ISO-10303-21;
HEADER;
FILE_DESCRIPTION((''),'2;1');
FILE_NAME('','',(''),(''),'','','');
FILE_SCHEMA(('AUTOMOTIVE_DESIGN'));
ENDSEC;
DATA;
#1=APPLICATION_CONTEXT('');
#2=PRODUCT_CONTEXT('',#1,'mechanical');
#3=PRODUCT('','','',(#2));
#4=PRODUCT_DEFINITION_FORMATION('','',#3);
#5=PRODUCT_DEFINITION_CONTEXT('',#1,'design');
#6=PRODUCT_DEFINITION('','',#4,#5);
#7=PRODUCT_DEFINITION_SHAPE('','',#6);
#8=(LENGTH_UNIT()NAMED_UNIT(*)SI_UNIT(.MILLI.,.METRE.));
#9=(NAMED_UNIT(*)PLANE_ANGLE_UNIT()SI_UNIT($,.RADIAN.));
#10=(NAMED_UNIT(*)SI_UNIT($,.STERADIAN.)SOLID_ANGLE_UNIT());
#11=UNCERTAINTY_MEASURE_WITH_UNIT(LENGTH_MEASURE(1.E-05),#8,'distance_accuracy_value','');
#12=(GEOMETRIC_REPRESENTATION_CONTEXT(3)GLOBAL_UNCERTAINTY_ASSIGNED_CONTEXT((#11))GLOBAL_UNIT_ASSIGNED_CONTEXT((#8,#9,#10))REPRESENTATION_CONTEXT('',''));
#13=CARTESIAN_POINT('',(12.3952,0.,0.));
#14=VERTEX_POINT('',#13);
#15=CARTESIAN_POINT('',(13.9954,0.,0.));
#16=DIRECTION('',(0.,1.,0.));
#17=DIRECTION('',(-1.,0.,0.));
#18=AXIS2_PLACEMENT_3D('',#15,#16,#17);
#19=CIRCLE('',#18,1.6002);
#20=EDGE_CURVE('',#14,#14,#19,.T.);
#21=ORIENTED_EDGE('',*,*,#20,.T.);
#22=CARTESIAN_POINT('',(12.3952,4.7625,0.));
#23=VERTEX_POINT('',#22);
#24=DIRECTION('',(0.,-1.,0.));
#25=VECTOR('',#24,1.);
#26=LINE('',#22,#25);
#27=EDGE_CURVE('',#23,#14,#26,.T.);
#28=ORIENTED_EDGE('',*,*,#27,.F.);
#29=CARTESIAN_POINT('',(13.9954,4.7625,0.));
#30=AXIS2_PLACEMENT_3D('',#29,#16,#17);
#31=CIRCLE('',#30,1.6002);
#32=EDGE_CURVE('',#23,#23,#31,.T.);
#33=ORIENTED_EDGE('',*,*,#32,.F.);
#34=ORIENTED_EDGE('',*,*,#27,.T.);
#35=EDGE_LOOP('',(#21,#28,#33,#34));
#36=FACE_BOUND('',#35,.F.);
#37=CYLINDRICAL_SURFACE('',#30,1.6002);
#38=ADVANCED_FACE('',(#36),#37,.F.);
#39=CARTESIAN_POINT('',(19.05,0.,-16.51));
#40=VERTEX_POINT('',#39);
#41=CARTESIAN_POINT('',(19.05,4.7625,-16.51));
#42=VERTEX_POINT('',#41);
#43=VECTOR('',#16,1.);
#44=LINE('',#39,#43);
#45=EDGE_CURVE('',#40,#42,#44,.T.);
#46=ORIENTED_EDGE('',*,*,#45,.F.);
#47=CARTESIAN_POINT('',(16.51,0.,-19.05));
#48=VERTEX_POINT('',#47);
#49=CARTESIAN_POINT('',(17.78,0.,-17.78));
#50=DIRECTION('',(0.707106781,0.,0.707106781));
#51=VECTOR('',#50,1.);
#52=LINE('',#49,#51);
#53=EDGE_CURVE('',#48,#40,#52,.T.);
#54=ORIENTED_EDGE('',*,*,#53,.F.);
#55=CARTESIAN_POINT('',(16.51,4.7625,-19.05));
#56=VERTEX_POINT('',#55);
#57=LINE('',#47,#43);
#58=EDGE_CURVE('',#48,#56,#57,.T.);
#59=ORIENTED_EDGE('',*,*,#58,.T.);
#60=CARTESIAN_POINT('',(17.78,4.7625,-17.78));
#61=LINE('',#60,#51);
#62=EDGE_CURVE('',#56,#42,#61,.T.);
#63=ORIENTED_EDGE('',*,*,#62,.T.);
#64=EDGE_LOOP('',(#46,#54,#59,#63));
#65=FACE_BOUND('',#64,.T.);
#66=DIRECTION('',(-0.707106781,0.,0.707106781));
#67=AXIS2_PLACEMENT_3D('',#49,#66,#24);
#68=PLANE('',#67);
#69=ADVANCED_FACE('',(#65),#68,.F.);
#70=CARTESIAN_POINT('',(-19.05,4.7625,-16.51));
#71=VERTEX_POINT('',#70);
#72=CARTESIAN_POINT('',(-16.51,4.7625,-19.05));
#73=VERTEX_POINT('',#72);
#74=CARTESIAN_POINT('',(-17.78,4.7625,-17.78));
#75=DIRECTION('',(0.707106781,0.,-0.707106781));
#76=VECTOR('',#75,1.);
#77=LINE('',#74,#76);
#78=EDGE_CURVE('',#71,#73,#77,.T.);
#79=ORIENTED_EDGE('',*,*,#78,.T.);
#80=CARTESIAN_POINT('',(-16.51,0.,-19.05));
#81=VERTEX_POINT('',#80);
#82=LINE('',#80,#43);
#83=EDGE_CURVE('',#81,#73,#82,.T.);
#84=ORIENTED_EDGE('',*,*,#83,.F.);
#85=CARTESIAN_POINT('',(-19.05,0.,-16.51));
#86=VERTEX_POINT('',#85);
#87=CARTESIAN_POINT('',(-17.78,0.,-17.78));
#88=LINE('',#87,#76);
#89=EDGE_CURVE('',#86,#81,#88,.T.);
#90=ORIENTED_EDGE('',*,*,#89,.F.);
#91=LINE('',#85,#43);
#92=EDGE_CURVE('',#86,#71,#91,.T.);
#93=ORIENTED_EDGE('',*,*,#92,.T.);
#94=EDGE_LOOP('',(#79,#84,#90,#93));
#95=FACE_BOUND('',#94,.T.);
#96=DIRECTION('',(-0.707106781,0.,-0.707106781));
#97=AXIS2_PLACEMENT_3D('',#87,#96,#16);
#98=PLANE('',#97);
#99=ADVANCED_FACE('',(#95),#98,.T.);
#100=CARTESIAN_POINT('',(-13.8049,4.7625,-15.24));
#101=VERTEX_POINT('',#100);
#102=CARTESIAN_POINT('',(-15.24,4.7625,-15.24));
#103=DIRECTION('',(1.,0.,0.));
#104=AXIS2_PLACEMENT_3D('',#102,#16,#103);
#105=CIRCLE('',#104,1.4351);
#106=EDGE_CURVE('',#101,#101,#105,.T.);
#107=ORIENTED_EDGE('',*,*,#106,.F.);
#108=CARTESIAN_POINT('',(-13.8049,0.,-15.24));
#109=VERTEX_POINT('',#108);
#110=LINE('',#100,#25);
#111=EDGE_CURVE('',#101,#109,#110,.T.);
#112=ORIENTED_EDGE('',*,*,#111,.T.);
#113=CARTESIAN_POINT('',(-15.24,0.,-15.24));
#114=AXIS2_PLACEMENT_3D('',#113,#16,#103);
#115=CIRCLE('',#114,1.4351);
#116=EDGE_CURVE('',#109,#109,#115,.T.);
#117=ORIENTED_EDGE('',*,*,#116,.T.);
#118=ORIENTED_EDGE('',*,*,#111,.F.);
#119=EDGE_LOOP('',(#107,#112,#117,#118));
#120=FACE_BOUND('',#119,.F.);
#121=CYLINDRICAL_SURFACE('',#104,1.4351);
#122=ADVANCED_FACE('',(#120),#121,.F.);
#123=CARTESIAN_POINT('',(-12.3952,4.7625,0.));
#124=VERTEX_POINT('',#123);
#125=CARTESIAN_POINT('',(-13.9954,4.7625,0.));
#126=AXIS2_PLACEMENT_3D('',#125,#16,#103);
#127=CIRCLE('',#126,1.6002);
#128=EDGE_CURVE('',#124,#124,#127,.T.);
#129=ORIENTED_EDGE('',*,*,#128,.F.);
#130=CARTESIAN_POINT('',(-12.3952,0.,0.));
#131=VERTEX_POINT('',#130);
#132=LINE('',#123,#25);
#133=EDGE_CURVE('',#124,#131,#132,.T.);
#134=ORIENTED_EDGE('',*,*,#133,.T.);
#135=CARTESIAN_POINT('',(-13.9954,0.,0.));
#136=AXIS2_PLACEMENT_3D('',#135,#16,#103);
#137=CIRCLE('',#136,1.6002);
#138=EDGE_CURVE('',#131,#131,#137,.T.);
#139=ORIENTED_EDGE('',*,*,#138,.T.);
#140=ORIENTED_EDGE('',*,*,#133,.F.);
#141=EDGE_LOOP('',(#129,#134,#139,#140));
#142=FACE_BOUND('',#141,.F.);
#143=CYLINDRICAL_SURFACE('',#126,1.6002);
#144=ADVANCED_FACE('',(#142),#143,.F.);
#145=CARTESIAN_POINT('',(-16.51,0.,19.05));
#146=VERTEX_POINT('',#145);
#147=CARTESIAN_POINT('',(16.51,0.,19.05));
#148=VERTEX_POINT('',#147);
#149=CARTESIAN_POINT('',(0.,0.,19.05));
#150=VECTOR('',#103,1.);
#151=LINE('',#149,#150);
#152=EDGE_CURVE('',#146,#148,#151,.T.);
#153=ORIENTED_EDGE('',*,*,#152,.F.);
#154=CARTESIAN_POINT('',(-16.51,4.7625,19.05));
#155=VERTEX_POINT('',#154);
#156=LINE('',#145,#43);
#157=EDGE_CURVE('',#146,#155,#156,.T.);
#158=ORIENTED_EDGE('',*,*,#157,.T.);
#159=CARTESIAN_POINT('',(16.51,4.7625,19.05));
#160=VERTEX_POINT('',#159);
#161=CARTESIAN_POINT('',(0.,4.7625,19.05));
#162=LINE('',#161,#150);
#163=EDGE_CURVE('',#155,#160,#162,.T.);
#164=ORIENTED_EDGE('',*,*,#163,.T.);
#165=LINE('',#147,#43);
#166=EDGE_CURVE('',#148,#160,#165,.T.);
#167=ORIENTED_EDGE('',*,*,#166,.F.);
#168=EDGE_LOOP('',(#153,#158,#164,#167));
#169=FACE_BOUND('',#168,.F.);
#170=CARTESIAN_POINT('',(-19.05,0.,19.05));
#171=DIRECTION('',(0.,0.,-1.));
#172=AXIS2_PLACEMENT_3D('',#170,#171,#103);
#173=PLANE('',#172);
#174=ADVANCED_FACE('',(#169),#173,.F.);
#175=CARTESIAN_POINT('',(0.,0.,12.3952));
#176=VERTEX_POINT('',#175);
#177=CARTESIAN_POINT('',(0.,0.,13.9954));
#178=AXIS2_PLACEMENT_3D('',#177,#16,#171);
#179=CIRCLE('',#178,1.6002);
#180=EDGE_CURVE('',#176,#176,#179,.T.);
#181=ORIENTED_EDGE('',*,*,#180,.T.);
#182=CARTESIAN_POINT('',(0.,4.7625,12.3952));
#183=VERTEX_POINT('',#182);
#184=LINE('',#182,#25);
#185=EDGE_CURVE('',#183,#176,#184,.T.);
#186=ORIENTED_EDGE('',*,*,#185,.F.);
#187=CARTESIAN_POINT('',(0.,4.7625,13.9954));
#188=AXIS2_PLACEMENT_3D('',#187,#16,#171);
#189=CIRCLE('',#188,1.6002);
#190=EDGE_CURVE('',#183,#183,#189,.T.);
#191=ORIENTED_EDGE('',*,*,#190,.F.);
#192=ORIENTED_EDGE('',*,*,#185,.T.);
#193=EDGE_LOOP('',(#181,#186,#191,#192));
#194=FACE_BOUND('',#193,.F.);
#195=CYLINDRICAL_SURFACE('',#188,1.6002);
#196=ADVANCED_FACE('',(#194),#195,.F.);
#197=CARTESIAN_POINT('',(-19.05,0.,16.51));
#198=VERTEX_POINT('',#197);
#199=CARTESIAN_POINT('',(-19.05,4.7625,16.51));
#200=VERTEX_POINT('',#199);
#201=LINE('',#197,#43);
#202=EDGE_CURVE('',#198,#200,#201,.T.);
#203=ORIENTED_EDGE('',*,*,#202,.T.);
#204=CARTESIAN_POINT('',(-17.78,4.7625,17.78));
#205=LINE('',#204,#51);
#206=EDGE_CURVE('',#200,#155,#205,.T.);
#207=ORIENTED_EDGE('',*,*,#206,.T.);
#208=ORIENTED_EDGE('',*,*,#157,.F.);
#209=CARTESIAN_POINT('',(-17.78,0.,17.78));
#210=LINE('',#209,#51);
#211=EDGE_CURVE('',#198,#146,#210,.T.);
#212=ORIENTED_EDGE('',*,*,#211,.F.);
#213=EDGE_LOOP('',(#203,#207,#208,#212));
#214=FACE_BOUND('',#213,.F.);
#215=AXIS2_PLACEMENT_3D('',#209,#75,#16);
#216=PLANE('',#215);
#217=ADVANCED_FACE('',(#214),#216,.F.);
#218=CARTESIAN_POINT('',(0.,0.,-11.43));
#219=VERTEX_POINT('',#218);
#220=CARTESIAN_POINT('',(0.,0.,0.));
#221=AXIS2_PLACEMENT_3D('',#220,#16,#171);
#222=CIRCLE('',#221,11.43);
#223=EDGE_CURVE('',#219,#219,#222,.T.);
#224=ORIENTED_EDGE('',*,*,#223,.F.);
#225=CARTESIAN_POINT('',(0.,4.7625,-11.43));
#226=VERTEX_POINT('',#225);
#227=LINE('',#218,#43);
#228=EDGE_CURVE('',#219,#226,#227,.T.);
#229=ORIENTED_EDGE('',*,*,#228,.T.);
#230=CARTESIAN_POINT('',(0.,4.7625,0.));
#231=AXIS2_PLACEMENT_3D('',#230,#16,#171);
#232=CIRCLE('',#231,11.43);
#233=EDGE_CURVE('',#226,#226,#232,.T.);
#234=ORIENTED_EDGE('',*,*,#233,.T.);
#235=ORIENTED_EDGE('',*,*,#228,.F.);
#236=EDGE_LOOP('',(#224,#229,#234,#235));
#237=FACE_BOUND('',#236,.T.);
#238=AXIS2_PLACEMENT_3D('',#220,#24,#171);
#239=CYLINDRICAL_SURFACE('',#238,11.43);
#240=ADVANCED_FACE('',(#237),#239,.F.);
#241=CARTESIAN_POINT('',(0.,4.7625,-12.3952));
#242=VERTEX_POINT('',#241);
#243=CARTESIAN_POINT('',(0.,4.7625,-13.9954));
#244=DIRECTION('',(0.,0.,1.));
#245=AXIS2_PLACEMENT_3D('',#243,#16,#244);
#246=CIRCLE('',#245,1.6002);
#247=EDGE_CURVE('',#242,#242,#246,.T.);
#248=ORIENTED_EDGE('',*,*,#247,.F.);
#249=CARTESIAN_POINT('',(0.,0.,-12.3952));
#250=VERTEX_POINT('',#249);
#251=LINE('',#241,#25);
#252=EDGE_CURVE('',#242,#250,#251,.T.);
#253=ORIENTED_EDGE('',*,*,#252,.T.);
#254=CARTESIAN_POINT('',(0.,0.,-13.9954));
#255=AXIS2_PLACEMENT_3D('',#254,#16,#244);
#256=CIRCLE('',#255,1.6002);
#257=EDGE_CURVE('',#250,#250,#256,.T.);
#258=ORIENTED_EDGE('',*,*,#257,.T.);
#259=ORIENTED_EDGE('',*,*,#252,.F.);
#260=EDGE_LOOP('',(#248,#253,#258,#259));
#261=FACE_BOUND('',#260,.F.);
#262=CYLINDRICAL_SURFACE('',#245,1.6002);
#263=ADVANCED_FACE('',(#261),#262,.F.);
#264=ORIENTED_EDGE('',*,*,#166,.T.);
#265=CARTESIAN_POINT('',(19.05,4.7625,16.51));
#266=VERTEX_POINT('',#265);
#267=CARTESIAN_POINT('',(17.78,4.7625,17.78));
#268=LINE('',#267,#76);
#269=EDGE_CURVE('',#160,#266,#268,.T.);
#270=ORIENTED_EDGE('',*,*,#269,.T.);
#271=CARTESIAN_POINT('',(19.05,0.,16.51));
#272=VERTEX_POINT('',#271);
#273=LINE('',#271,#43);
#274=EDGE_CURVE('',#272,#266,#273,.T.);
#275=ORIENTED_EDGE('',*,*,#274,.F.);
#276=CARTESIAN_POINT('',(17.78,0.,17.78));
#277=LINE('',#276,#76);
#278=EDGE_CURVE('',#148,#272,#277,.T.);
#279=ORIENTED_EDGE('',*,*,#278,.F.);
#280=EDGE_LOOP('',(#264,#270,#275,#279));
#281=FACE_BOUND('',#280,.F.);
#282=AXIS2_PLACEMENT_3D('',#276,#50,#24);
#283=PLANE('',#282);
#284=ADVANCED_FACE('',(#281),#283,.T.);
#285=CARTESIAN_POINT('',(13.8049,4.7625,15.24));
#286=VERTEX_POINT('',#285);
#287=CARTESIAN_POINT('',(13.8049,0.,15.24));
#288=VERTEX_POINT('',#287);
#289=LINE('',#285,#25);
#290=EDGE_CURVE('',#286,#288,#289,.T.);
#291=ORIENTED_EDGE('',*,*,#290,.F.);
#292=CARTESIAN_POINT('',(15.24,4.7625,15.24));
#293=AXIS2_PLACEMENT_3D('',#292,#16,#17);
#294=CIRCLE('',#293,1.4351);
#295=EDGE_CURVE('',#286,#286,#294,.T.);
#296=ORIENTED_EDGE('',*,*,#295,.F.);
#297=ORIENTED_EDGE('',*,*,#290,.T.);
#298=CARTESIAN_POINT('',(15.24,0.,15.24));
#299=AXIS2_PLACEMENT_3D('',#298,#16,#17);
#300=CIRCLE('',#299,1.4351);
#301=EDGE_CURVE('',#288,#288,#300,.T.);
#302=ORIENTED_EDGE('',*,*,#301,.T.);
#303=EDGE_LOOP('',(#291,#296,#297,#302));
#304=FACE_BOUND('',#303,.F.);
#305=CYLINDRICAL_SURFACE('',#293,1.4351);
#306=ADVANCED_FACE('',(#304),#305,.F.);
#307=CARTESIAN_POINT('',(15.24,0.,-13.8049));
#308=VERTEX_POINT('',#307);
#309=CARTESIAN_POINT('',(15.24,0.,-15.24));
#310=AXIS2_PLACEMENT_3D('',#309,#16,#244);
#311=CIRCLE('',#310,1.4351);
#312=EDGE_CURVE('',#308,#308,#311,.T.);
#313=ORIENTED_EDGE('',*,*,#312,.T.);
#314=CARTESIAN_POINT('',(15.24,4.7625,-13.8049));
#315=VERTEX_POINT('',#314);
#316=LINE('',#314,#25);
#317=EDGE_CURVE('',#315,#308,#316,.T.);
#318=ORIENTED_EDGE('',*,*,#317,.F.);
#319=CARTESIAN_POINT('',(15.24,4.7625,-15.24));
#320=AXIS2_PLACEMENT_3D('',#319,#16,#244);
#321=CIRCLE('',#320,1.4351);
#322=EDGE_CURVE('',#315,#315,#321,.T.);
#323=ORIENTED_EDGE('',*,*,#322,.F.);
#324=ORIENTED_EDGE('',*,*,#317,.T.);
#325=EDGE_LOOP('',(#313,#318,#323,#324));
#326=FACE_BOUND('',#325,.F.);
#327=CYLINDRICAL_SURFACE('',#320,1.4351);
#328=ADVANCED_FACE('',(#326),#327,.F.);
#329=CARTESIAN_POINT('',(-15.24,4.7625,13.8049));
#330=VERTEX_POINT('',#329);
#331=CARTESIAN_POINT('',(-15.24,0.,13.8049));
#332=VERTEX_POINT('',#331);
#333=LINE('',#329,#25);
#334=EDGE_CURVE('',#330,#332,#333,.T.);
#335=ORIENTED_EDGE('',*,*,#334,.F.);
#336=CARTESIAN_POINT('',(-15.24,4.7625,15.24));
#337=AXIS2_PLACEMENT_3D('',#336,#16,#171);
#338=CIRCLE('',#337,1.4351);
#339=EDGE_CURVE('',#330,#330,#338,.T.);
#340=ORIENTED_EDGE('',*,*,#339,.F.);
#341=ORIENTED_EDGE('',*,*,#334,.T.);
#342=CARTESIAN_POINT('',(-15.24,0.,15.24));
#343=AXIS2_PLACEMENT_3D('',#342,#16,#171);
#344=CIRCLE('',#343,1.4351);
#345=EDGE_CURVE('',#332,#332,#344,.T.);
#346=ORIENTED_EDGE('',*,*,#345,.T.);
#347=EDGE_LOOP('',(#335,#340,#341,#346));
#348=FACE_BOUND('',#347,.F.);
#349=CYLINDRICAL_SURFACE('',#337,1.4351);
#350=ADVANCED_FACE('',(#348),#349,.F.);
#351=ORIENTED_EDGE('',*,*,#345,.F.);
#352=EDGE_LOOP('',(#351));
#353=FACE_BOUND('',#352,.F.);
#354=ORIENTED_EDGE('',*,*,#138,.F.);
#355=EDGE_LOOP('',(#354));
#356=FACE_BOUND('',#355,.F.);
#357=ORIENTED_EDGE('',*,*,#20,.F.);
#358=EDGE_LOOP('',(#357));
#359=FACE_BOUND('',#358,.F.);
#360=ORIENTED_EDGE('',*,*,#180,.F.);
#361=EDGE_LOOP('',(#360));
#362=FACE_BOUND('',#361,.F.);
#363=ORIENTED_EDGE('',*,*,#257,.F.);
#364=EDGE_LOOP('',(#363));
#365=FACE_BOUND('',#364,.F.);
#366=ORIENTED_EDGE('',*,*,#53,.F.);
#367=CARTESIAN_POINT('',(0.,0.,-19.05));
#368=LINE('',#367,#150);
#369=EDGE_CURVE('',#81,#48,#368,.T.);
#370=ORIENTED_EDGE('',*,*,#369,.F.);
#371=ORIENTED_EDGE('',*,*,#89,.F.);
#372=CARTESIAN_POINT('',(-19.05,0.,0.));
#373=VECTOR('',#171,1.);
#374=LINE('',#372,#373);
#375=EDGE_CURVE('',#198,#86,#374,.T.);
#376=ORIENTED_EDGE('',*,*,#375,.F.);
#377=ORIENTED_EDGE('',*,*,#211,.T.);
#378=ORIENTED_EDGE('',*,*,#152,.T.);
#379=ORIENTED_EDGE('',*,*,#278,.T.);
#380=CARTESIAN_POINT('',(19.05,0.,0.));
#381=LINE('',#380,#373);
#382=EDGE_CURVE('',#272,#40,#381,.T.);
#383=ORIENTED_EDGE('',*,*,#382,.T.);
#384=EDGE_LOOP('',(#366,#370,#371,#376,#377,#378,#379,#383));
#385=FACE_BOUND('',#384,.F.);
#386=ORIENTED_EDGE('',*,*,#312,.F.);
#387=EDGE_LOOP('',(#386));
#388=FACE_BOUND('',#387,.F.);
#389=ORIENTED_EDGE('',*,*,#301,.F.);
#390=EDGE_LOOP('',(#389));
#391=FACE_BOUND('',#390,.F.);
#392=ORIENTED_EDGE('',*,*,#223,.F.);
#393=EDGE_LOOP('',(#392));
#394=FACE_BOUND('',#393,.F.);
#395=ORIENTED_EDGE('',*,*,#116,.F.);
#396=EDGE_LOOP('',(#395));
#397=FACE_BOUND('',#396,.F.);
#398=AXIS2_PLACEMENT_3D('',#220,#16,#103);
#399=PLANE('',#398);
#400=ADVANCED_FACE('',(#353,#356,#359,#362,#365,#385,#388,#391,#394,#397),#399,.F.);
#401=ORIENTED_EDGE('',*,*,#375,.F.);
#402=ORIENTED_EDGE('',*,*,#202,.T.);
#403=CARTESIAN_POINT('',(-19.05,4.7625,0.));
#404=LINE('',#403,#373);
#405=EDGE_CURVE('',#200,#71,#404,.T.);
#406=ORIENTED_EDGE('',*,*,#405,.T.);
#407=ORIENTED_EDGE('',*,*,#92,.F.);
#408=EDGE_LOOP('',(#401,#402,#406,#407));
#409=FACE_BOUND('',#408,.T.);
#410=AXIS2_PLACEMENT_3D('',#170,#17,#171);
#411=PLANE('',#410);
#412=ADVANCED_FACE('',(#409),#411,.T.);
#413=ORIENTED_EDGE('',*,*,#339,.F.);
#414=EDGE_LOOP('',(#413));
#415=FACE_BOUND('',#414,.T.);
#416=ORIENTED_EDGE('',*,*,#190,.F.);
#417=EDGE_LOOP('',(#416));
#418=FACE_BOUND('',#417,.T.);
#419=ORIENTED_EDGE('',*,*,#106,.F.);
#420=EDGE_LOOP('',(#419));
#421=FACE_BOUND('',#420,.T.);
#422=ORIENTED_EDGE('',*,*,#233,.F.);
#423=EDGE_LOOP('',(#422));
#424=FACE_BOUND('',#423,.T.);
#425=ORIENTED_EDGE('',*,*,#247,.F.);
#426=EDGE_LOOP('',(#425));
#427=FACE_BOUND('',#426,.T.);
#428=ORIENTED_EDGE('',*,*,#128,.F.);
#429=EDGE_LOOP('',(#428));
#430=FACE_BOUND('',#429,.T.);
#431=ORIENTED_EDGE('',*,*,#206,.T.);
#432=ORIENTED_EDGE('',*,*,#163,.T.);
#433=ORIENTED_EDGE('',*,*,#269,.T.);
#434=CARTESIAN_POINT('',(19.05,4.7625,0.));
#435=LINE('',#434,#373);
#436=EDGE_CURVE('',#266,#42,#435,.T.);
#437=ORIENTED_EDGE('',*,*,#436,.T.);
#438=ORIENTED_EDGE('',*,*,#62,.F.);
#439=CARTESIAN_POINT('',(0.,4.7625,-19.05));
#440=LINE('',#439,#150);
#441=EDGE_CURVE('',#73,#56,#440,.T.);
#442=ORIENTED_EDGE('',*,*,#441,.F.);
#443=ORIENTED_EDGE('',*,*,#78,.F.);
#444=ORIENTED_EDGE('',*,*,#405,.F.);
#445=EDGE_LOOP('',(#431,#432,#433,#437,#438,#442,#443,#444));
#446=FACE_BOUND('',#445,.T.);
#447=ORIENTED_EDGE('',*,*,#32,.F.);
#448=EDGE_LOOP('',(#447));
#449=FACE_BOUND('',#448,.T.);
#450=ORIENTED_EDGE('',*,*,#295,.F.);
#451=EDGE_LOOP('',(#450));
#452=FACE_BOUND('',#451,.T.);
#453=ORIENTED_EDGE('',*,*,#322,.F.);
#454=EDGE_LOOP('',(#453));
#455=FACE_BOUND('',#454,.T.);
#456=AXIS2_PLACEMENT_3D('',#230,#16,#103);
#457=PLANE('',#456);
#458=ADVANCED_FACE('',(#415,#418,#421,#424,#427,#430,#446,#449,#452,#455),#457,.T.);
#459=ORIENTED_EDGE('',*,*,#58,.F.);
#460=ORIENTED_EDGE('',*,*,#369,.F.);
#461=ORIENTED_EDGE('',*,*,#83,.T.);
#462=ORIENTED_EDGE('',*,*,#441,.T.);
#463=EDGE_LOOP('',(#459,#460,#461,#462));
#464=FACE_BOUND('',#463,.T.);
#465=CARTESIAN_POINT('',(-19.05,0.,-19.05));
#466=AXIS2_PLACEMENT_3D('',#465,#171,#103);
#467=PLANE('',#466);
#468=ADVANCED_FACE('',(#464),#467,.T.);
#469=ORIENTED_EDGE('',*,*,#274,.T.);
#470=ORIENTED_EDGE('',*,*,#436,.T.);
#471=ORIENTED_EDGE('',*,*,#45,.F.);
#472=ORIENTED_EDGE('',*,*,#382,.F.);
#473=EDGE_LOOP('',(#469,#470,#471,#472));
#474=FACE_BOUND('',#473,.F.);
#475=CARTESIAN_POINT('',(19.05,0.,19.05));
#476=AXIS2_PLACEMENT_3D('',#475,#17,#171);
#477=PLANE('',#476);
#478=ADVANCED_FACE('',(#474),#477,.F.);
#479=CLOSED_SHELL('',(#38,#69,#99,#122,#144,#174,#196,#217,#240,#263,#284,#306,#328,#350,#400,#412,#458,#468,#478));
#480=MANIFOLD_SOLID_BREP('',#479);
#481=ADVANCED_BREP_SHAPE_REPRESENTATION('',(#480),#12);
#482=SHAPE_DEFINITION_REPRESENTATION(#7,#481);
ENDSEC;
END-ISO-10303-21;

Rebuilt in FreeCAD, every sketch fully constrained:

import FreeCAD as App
import Part
import Sketcher
Q = App.Units.Quantity


def edges_at(feature, points):
    """Names of the edges that pass closest to the given points."""
    edges = feature.Shape.Edges
    near = lambda p: min(range(len(edges)), key=lambda i: edges[i].distToShape(Part.Vertex(*p))[0])
    return sorted({f"Edge{near(p) + 1}" for p in points})

doc = App.newDocument("Part")
params = doc.addObject("Spreadsheet::Sheet", "Params")
for row, (alias, value) in enumerate([
    ("sketch1_diameter", "0.9 in"),
    ("sketch1_width", "1.5 in"),
    ("pad1_length", "0.1875 in"),
    ("sketch2_diameter", "0.126 in"),
    ("sketch2_diameter2", "0.113 in"),
    ("chamfer_size", "0.1 in"),
], start=1):
    params.set(f"A{row}", alias)
    params.set(f"B{row}", "=" + value)
    params.setAlias(f"B{row}", alias)

body = doc.addObject("PartDesign::Body", "Body")

sketch1 = body.newObject("Sketcher::SketchObject", "Sketch")
sketch1.AttachmentSupport = (doc.getObject("XZ_Plane"), [""])
sketch1.MapMode = "FlatFace"
sketch1.addGeometry(Part.LineSegment(App.Vector(-19, -19, 0), App.Vector(-19, 19, 0)), False)
sketch1.addGeometry(Part.LineSegment(App.Vector(-19, 19, 0), App.Vector(19, 19, 0)), False)
sketch1.addGeometry(Part.LineSegment(App.Vector(19, 19, 0), App.Vector(19, -19, 0)), False)
sketch1.addGeometry(Part.LineSegment(App.Vector(19, -19, 0), App.Vector(-19, -19, 0)), False)
sketch1.addGeometry(Part.Circle(App.Vector(0, 0, 0), App.Vector(0, 0, 1), 11), False)
sketch1.addConstraint(Sketcher.Constraint("Coincident", 0, 2, 1, 1))
sketch1.addConstraint(Sketcher.Constraint("Coincident", 1, 2, 2, 1))
sketch1.addConstraint(Sketcher.Constraint("Coincident", 2, 2, 3, 1))
sketch1.addConstraint(Sketcher.Constraint("Coincident", 3, 2, 0, 1))
sketch1.addConstraint(Sketcher.Constraint("Vertical", 0))
sketch1.addConstraint(Sketcher.Constraint("Horizontal", 1))
sketch1.addConstraint(Sketcher.Constraint("Vertical", 2))
sketch1.addConstraint(Sketcher.Constraint("Horizontal", 3))
sketch1.addConstraint(Sketcher.Constraint("Coincident", 4, 3, -1, 1))
sketch1.addConstraint(Sketcher.Constraint("Symmetric", 0, 2, 2, 2, -1, 1))
sketch1.addConstraint(Sketcher.Constraint("Equal", 3, 0))
sketch1.addConstraint(Sketcher.Constraint("Diameter", 4, Q("0.9 in")))
sketch1.addConstraint(Sketcher.Constraint("DistanceX", 1, 1, 1, 2, Q("1.5 in")))
sketch1.setExpression("Constraints[11]", "Params.sketch1_diameter")
sketch1.setExpression("Constraints[12]", "Params.sketch1_width")
pad1 = body.newObject("PartDesign::Pad", "Pad")
pad1.Profile = sketch1
pad1.setExpression("Length", "Params.pad1_length")
pad1.Reversed = True

sketch2 = body.newObject("Sketcher::SketchObject", "Sketch001")
sketch2.AttachmentSupport = (doc.getObject("XZ_Plane"), [""])
sketch2.MapMode = "FlatFace"
sketch2.AttachmentOffset = App.Placement(App.Vector(0, 0, -0.1875 * 25.4), App.Rotation())
sketch2.addGeometry(Part.Circle(App.Vector(0, -14, 0), App.Vector(0, 0, 1), 1.6), False)
sketch2.addGeometry(Part.Circle(App.Vector(15.2, -15.2, 0), App.Vector(0, 0, 1), 1.4), False)
sketch2.addConstraint(Sketcher.Constraint("PointOnObject", 0, 3, -2))
sketch2.addConstraint(Sketcher.Constraint("Diameter", 0, Q("0.126 in")))
sketch2.addConstraint(Sketcher.Constraint("Diameter", 1, Q("0.113 in")))
sketch2.addConstraint(Sketcher.Constraint("DistanceX", -1, 1, 1, 3, Q("0.6 in")))
sketch2.addConstraint(Sketcher.Constraint("DistanceY", 1, 3, -1, 1, Q("0.6 in")))
sketch2.addConstraint(Sketcher.Constraint("DistanceY", 0, 3, -1, 1, Q("0.551 in")))
sketch2.setExpression("Constraints[1]", "Params.sketch2_diameter")
sketch2.setExpression("Constraints[2]", "Params.sketch2_diameter2")
pocket1 = body.newObject("PartDesign::Pocket", "Pocket")
pocket1.Profile = sketch2
pocket1.Type = "ThroughAll"
pocket1.Reversed = True
doc.recompute()

polarpattern = body.newObject("PartDesign::PolarPattern", "PolarPattern")
polarpattern.Originals = [pocket1]
polarpattern.Axis = (doc.getObject("Y_Axis"), [""])
polarpattern.Angle = 360
polarpattern.Occurrences = 4
body.Tip = polarpattern
doc.recompute()

chamfer = body.newObject("PartDesign::Chamfer", "Chamfer")
chamfer.Base = (polarpattern, edges_at(polarpattern, [
    (19.05, 2.381, 19.05),
    (-19.05, 2.381, 19.05),
    (-19.05, 2.381, -19.05),
    (19.05, 2.381, -19.05),
]))
chamfer.setExpression("Size", "Params.chamfer_size")

doc.recompute()
